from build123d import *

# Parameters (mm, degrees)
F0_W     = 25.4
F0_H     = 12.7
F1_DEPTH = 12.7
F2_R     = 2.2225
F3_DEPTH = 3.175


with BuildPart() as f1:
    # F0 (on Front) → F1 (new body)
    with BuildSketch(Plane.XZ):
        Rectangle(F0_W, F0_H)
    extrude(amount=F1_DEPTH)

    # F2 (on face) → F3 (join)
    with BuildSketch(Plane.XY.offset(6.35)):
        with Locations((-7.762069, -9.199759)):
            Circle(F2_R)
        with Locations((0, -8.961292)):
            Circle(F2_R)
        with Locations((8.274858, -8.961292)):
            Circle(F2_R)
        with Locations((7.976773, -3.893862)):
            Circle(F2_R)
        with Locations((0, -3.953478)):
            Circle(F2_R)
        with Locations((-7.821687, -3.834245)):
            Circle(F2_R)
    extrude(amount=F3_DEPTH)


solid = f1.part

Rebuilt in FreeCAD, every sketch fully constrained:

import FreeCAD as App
import Part
import Sketcher

V = App.Vector
Q = App.Units.Quantity

doc = App.newDocument("Part")
params = doc.addObject("Spreadsheet::Sheet", "Params")
for row, (alias, value) in enumerate([
    ("sketch1_width", "1 in"),
    ("sketch1_height", "0.5 in"),
    ("pad1_length", "0.5 in"),
    ("sketch2_diameter", "0.175 in"),
    ("pad2_length", "0.125 in"),
], start=1):
    params.set(f"A{row}", alias)
    params.set(f"B{row}", "=" + value)
    params.setAlias(f"B{row}", alias)

body = doc.addObject("PartDesign::Body", "Body")

sketch1 = body.newObject("Sketcher::SketchObject", "Sketch")
sketch1.AttachmentSupport = (doc.getObject("XZ_Plane"), [""])
sketch1.MapMode = "FlatFace"
sketch1.addGeometry([
    Part.LineSegment(V(-13, 6, 0), V(-13, -6, 0)),
    Part.LineSegment(V(-13, -6, 0), V(13, -6, 0)),
    Part.LineSegment(V(13, -6, 0), V(13, 6, 0)),
    Part.LineSegment(V(13, 6, 0), V(-13, 6, 0)),
], False)
sketch1.addConstraint([
    Sketcher.Constraint("Coincident", 0, 2, 1, 1),
    Sketcher.Constraint("Coincident", 1, 2, 2, 1),
    Sketcher.Constraint("Coincident", 2, 2, 3, 1),
    Sketcher.Constraint("Coincident", 3, 2, 0, 1),
    Sketcher.Constraint("Vertical", 0),
    Sketcher.Constraint("Horizontal", 1),
    Sketcher.Constraint("Vertical", 2),
    Sketcher.Constraint("Horizontal", 3),
    Sketcher.Constraint("Symmetric", 0, 2, 2, 2, -1, 1),
    Sketcher.Constraint("DistanceX", 1, 1, 1, 2, Q("1 in")),
    Sketcher.Constraint("DistanceY", 0, 2, 0, 1, Q("0.5 in")),
])
sketch1.setExpression("Constraints[9]", "Params.sketch1_width")
sketch1.setExpression("Constraints[10]", "Params.sketch1_height")
pad1 = body.newObject("PartDesign::Pad", "Pad")
pad1.Profile = sketch1
pad1.setExpression("Length", "Params.pad1_length")

sketch2 = body.newObject("Sketcher::SketchObject", "Sketch001")
sketch2.AttachmentSupport = (doc.getObject("XY_Plane"), [""])
sketch2.MapMode = "FlatFace"
sketch2.AttachmentOffset = App.Placement(V(0, 0, 0.25 * 25.4), App.Rotation())
sketch2.addGeometry([
    Part.Circle(V(-7.8, -9.2, 0), V(0, 0, 1), 2.2),
    Part.Circle(V(0, -9, 0), V(0, 0, 1), 2.2),
    Part.Circle(V(8.3, -9, 0), V(0, 0, 1), 2.2),
    Part.Circle(V(8, -3.9, 0), V(0, 0, 1), 2.2),
    Part.Circle(V(0, -4, 0), V(0, 0, 1), 2.2),
    Part.Circle(V(-7.8, -3.8, 0), V(0, 0, 1), 2.2),
], False)
sketch2.addConstraint([
    Sketcher.Constraint("Equal", 0, 1),
    Sketcher.Constraint("Equal", 1, 2),
    Sketcher.Constraint("Equal", 2, 3),
    Sketcher.Constraint("Equal", 3, 4),
    Sketcher.Constraint("Equal", 4, 5),
    Sketcher.Constraint("PointOnObject", 1, 3, -2),
    Sketcher.Constraint("PointOnObject", 4, 3, -2),
    Sketcher.Constraint("Horizontal", 1, 3, 2, 3),
    Sketcher.Constraint("Diameter", 0, Q("0.175 in")),
    Sketcher.Constraint("DistanceX", 0, 3, -1, 1, Q("7.762069 mm")),
    Sketcher.Constraint("DistanceY", 0, 3, -1, 1, Q("9.199759 mm")),
    Sketcher.Constraint("DistanceY", 3, 3, -1, 1, Q("3.893862 mm")),
    Sketcher.Constraint("DistanceY", 4, 3, -1, 1, Q("3.953478 mm")),
    Sketcher.Constraint("DistanceY", 2, 3, 3, 3, Q("5.06743 mm")),
    Sketcher.Constraint("DistanceX", 5, 3, 3, 3, Q("15.79846 mm")),
    Sketcher.Constraint("DistanceX", -1, 1, 2, 3, Q("8.274858 mm")),
    Sketcher.Constraint("DistanceX", -1, 1, 3, 3, Q("7.976773 mm")),
    Sketcher.Constraint("DistanceY", 5, 3, -1, 1, Q("3.834245 mm")),
])
sketch2.setExpression("Constraints[8]", "Params.sketch2_diameter")
pad2 = body.newObject("PartDesign::Pad", "Pad001")
pad2.Profile = sketch2
pad2.setExpression("Length", "Params.pad2_length")

doc.recompute()
